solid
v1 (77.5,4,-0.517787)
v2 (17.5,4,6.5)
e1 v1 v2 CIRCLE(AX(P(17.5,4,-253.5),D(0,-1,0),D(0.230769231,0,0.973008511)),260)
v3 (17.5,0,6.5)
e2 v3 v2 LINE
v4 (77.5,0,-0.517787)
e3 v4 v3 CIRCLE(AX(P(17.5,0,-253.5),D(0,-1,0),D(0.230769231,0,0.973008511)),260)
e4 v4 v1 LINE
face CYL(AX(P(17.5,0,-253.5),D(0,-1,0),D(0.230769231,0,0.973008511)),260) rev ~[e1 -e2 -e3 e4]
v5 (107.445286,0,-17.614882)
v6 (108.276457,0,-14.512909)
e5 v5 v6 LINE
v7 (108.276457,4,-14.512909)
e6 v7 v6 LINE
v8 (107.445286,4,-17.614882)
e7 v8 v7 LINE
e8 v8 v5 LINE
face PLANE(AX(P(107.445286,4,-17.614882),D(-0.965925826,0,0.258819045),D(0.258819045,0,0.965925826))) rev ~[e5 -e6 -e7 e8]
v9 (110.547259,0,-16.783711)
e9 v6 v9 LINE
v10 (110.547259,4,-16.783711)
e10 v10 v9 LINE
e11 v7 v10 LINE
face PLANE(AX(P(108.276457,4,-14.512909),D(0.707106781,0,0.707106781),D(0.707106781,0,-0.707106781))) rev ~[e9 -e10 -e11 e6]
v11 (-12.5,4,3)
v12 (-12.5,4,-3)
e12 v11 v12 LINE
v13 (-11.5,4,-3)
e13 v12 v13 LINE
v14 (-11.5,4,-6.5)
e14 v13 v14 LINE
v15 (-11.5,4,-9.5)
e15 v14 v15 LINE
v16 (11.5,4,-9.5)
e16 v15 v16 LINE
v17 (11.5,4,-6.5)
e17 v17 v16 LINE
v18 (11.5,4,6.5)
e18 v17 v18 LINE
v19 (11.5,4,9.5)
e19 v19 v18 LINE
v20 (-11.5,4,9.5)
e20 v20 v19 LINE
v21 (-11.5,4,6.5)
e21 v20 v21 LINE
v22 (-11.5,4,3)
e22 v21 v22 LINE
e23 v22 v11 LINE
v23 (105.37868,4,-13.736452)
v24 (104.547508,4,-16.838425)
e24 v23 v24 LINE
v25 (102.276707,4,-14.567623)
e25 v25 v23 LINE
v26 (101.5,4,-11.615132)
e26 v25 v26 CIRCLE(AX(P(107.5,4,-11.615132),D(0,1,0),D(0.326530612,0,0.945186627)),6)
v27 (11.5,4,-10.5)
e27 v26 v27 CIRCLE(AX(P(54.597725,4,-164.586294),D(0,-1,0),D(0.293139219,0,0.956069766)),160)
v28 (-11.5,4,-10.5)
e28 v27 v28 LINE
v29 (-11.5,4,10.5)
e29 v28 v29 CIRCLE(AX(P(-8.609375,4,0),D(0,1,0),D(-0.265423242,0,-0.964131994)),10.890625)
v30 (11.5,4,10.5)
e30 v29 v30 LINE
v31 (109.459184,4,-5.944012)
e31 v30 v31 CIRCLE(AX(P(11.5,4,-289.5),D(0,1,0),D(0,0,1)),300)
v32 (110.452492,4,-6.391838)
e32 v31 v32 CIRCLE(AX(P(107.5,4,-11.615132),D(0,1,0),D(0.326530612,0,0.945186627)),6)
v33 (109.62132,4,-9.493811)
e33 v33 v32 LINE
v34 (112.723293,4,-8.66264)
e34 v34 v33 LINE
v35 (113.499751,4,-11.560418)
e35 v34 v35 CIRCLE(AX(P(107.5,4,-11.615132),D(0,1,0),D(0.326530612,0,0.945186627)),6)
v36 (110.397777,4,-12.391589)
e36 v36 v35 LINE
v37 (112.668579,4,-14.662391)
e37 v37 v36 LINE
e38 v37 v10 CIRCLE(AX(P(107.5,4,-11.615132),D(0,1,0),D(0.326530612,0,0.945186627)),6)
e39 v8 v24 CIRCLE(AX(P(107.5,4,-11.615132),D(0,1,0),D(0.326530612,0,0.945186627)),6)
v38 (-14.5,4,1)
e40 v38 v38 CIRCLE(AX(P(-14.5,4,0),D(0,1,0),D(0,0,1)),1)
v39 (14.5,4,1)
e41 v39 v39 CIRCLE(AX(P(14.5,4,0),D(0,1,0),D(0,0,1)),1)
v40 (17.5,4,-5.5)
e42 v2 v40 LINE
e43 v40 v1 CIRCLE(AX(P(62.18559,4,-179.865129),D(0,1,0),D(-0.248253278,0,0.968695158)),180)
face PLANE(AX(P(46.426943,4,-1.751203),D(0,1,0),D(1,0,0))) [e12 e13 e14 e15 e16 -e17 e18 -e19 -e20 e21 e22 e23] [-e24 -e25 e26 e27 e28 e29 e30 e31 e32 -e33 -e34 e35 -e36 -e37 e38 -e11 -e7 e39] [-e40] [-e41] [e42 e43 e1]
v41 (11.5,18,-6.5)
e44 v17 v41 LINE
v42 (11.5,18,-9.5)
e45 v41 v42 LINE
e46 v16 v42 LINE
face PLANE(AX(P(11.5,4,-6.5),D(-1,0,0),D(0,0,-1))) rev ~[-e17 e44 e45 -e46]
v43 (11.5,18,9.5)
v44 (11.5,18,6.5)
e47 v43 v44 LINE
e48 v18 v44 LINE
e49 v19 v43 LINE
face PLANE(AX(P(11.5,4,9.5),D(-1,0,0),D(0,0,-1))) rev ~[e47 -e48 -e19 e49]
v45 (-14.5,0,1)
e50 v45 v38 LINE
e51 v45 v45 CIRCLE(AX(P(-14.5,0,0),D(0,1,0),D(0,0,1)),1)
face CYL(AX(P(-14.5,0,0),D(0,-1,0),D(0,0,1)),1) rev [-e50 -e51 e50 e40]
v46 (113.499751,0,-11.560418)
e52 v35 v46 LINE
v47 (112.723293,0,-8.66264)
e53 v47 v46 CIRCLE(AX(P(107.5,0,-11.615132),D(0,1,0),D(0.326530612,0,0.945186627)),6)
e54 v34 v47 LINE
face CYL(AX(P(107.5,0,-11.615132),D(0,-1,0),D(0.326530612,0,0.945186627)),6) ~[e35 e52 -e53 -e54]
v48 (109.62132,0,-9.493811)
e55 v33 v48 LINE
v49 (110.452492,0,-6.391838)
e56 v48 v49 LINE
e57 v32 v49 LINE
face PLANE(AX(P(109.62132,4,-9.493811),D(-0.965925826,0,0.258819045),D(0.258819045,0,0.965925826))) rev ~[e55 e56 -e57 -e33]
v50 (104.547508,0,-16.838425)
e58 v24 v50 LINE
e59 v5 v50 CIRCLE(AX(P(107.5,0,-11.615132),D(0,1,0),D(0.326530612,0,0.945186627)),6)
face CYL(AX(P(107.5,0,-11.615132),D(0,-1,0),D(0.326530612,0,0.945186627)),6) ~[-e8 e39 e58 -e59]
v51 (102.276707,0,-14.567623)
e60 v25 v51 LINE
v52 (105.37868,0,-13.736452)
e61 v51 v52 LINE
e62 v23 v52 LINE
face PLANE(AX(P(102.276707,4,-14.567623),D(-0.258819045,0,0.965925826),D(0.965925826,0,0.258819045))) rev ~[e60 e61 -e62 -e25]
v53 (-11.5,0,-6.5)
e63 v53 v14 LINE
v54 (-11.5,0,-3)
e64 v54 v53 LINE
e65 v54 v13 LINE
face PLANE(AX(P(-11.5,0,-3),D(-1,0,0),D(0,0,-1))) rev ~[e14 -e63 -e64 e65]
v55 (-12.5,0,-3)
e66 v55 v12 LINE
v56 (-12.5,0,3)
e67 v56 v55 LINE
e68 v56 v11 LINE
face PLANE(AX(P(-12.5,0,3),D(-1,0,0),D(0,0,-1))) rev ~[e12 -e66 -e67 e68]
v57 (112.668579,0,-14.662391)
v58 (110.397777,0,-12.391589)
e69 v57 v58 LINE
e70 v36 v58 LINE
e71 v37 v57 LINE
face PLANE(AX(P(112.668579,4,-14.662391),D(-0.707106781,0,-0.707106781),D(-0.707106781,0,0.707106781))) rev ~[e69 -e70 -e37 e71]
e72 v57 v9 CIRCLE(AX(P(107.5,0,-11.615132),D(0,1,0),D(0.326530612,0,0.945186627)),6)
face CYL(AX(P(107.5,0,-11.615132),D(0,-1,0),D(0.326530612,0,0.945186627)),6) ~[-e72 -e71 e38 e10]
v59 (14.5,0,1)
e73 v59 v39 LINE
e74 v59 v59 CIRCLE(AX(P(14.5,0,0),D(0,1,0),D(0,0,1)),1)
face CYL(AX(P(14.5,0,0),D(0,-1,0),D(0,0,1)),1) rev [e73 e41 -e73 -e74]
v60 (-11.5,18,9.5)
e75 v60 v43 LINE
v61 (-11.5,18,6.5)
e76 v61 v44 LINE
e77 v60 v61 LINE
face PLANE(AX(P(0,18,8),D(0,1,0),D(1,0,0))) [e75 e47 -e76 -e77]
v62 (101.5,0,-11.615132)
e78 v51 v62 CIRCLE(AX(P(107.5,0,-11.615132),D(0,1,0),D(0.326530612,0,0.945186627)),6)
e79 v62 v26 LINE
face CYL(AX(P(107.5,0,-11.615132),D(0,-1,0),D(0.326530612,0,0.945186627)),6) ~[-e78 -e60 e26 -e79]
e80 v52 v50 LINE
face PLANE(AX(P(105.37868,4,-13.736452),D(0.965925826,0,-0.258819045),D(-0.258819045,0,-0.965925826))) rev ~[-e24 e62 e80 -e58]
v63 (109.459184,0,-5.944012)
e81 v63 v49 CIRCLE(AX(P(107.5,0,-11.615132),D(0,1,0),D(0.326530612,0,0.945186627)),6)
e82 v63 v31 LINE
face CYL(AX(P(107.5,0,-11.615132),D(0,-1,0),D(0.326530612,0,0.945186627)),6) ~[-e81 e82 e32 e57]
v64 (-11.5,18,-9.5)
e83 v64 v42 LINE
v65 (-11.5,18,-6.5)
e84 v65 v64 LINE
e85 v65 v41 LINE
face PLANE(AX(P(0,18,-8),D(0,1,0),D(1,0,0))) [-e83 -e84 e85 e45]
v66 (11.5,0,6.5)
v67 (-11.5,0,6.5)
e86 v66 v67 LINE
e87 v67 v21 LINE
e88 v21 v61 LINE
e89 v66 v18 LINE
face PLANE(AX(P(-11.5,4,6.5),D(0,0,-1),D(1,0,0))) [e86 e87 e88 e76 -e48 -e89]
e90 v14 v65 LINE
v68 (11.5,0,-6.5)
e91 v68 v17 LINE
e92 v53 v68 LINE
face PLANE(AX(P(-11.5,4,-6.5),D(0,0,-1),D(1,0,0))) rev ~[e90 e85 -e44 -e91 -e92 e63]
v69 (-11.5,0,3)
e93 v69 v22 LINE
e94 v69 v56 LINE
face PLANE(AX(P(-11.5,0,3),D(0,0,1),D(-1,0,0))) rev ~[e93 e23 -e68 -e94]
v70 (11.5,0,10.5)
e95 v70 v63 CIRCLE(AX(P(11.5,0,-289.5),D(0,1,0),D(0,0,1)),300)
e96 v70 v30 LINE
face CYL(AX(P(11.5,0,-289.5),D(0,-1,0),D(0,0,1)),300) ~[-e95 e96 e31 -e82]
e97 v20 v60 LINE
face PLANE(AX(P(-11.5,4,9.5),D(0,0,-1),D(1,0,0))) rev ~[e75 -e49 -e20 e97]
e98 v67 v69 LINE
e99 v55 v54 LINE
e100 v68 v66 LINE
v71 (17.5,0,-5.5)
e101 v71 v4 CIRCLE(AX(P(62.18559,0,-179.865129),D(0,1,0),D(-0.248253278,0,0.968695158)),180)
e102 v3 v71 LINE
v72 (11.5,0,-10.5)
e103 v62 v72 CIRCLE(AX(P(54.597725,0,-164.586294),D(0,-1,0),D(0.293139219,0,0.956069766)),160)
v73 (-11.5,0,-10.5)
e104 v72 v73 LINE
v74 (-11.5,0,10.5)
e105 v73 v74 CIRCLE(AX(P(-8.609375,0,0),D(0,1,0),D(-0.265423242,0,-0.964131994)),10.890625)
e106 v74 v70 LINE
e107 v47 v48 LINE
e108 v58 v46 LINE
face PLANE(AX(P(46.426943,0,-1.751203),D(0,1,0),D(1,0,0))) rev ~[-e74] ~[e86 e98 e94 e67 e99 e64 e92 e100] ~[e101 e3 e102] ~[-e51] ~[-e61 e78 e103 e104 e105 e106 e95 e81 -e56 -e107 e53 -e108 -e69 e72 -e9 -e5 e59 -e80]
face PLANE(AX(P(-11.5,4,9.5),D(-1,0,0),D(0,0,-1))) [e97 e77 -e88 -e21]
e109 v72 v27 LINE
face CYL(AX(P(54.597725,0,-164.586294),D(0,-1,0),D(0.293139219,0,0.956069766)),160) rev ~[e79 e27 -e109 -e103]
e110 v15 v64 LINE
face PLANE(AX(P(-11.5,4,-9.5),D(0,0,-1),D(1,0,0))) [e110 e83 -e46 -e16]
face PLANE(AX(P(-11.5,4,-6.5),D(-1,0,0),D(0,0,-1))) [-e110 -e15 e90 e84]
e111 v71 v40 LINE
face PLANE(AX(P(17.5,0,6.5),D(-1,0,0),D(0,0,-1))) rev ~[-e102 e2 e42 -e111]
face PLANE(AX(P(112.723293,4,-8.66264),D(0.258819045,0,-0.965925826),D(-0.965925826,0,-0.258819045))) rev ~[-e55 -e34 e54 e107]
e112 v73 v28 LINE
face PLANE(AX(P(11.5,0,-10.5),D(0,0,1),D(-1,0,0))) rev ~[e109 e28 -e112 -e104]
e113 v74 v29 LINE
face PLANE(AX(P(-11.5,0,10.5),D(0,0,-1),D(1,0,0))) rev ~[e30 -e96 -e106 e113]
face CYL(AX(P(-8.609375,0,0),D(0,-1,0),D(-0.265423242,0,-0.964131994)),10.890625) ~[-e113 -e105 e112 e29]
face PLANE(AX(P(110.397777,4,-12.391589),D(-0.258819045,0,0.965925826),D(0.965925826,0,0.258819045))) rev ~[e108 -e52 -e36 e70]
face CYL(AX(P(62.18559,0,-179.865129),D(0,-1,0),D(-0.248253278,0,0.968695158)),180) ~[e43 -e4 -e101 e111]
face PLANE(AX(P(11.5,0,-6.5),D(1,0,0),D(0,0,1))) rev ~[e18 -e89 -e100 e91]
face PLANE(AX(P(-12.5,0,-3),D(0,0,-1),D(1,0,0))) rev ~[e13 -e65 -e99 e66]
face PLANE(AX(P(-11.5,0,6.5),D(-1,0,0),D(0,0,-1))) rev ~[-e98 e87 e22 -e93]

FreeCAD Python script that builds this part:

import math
import FreeCAD as App
import Part
import Sketcher

V = App.Vector
Q = App.Units.Quantity

doc = App.newDocument("Part")
params = doc.addObject("Spreadsheet::Sheet", "Params")
for row, (alias, value) in enumerate([
    ("sketch1_diameter", "2 mm"),
    ("sketch1_radius", "300 mm"),
    ("sketch1_radius2", "6 mm"),
    ("sketch1_radius3", "160 mm"),
    ("sketch1_radius4", "260 mm"),
    ("pad1_length", "4 mm"),
    ("sketch2_width", "23 mm"),
    ("sketch2_height", "3 mm"),
    ("pad2_length", "14 mm"),
    ("sketch3_radius", "6 mm"),
], start=1):
    params.set(f"A{row}", alias)
    params.set(f"B{row}", "=" + value)
    params.setAlias(f"B{row}", alias)

body = doc.addObject("PartDesign::Body", "Body")

# Sketch on XZ plane
sketch1 = body.newObject("Sketcher::SketchObject", "Sketch")
sketch1.AttachmentSupport = (doc.getObject("XZ_Plane"), [""])
sketch1.MapMode = "FlatFace"
sketch1.addGeometry([
    Part.ArcOfCircle(Part.Circle(V(-8.6, 0, 0), V(0, 0, 1), 10.9), math.radians(105), math.radians(255)),  # 0
    Part.LineSegment(V(-11.5, 10.5, 0), V(11.5, 10.5, 0)),  # 1
    Part.ArcOfCircle(Part.Circle(V(11.5, -289.5, 0), V(0, 0, 1), 300), math.radians(70.94), math.radians(90)),  # 2
    Part.ArcOfCircle(Part.Circle(V(107.5, -11.6, 0), V(0, 0, 1), 6), math.radians(180), math.radians(431)),  # 3
    Part.ArcOfCircle(Part.Circle(V(54.6, -164.6, 0), V(0, 0, 1), 160), math.radians(73), math.radians(106)),  # 4
    Part.LineSegment(V(11.5, -10.5, 0), V(-11.5, -10.5, 0)),  # 5
    Part.ArcOfCircle(Part.Circle(V(17.5, -253.5, 0), V(0, 0, 1), 260), math.radians(76.66), math.radians(90)),  # 6
    Part.LineSegment(V(17.5, 6.5, 0), V(17.5, -5.5, 0)),  # 7
    Part.ArcOfCircle(Part.Circle(V(62.2, -179.9, 0), V(0, 0, 1), 180), math.radians(85.12), math.radians(104.37)),  # 8
    Part.Circle(V(-14.5, 0, 0), V(0, 0, 1), 1),  # 9
    Part.LineSegment(V(11.5, -6.5, 0), V(11.5, 6.5, 0)),  # 10
    Part.LineSegment(V(11.5, 6.5, 0), V(-11.5, 6.5, 0)),  # 11
    Part.LineSegment(V(-11.5, 6.5, 0), V(-11.5, 3, 0)),  # 12
    Part.LineSegment(V(-11.5, 3, 0), V(-12.5, 3, 0)),  # 13
    Part.LineSegment(V(-12.5, 3, 0), V(-12.5, -3, 0)),  # 14
    Part.LineSegment(V(-12.5, -3, 0), V(-11.5, -3, 0)),  # 15
    Part.LineSegment(V(-11.5, -3, 0), V(-11.5, -6.5, 0)),  # 16
    Part.LineSegment(V(-11.5, -6.5, 0), V(11.5, -6.5, 0)),  # 17
    Part.Circle(V(14.5, 0, 0), V(0, 0, 1), 1),  # 18
], False)
sketch1.addConstraint([
    Sketcher.Constraint("Coincident", 0, 1, 1, 1),
    Sketcher.Constraint("Tangent", 1, 2, 2, 2),
    Sketcher.Constraint("Tangent", 2, 1, 3, 2),
    Sketcher.Constraint("Coincident", 3, 1, 4, 1),
    Sketcher.Constraint("Coincident", 4, 2, 5, 1),
    Sketcher.Constraint("Coincident", 5, 2, 0, 2),
    Sketcher.Constraint("Coincident", 6, 2, 7, 1),
    Sketcher.Constraint("Coincident", 7, 2, 8, 2),
    Sketcher.Constraint("Coincident", 8, 1, 6, 1),
    Sketcher.Constraint("Coincident", 10, 2, 11, 1),
    Sketcher.Constraint("Coincident", 11, 2, 12, 1),
    Sketcher.Constraint("Coincident", 12, 2, 13, 1),
    Sketcher.Constraint("Coincident", 13, 2, 14, 1),
    Sketcher.Constraint("Coincident", 14, 2, 15, 1),
    Sketcher.Constraint("Coincident", 15, 2, 16, 1),
    Sketcher.Constraint("Coincident", 16, 2, 17, 1),
    Sketcher.Constraint("Coincident", 17, 2, 10, 1),
    Sketcher.Constraint("Horizontal", 1),
    Sketcher.Constraint("Horizontal", 5),
    Sketcher.Constraint("Vertical", 7),
    Sketcher.Constraint("Vertical", 10),
    Sketcher.Constraint("Horizontal", 11),
    Sketcher.Constraint("Vertical", 12),
    Sketcher.Constraint("Horizontal", 13),
    Sketcher.Constraint("Vertical", 14),
    Sketcher.Constraint("Horizontal", 15),
    Sketcher.Constraint("Vertical", 16),
    Sketcher.Constraint("Horizontal", 17),
    Sketcher.Constraint("Equal", 9, 18),
    Sketcher.Constraint("Symmetric", 9, 3, 18, 3, -1, 1),
    Sketcher.Constraint("Symmetric", 0, 1, 4, 2, -1, 1),
    Sketcher.Constraint("Symmetric", 10, 2, 16, 2, -1, 1),
    Sketcher.Constraint("Symmetric", 12, 2, 15, 2, -1),
    Sketcher.Constraint("PointOnObject", 0, 3, -1),
    Sketcher.Constraint("PointOnObject", 9, 3, -1),
    Sketcher.Constraint("Horizontal", 6, 2, 10, 2),
    Sketcher.Constraint("Vertical", 1, 2, 4, 2),
    Sketcher.Constraint("Vertical", 4, 2, 10, 2),
    Sketcher.Constraint("Diameter", 9, Q("2 mm")),
    Sketcher.Constraint("Radius", 2, Q("300 mm")),
    Sketcher.Constraint("Radius", 3, Q("6 mm")),
    Sketcher.Constraint("Radius", 4, Q("160 mm")),
    Sketcher.Constraint("Radius", 6, Q("260 mm")),
    Sketcher.Constraint("Radius", 8, Q("180 mm")),
    Sketcher.Constraint("DistanceX", 1, 1, 1, 2, Q("23 mm")),
    Sketcher.Constraint("DistanceX", 13, 2, 13, 1, Q("1 mm")),
    Sketcher.Constraint("DistanceY", 7, 2, 7, 1, Q("12 mm")),
    Sketcher.Constraint("DistanceY", 10, 1, 10, 2, Q("13 mm")),
    Sketcher.Constraint("DistanceY", 14, 2, 14, 1, Q("6 mm")),
    Sketcher.Constraint("DistanceX", 2, 3, 3, 3, Q("96 mm")),
    Sketcher.Constraint("DistanceX", 2, 3, 6, 3, Q("6 mm")),
    Sketcher.Constraint("DistanceY", 2, 3, 6, 3, Q("36 mm")),
    Sketcher.Constraint("DistanceX", 9, 3, 3, 3, Q("122 mm")),
    Sketcher.Constraint("DistanceX", 18, 3, 6, 2, Q("3 mm")),
    Sketcher.Constraint("DistanceX", 8, 1, 3, 1, Q("24 mm")),
    Sketcher.Constraint("Radius", 0, Q("10.890625 mm")),
    Sketcher.Constraint("DistanceX", 0, 3, 4, 3, Q("63.2071 mm")),
])
sketch1.setExpression("Constraints[38]", "Params.sketch1_diameter")
sketch1.setExpression("Constraints[39]", "Params.sketch1_radius")
sketch1.setExpression("Constraints[40]", "Params.sketch1_radius2")
sketch1.setExpression("Constraints[41]", "Params.sketch1_radius3")
sketch1.setExpression("Constraints[42]", "Params.sketch1_radius4")
pad1 = body.newObject("PartDesign::Pad", "Pad")
pad1.Profile = sketch1
pad1.setExpression("Length", "Params.pad1_length")
pad1.Reversed = True

# Sketch on XZ plane
sketch2 = body.newObject("Sketcher::SketchObject", "Sketch001")
sketch2.AttachmentSupport = (doc.getObject("XZ_Plane"), [""])
sketch2.MapMode = "FlatFace"
sketch2.AttachmentOffset = App.Placement(V(0, 0, -4), App.Rotation())
sketch2.addGeometry([
    Part.LineSegment(V(-11.5, 6.5, 0), V(-11.5, 9.5, 0)),  # 0
    Part.LineSegment(V(-11.5, 9.5, 0), V(11.5, 9.5, 0)),  # 1
    Part.LineSegment(V(11.5, 9.5, 0), V(11.5, 6.5, 0)),  # 2
    Part.LineSegment(V(11.5, 6.5, 0), V(-11.5, 6.5, 0)),  # 3
    Part.LineSegment(V(-11.5, -9.5, 0), V(-11.5, -6.5, 0)),  # 4
    Part.LineSegment(V(-11.5, -6.5, 0), V(11.5, -6.5, 0)),  # 5
    Part.LineSegment(V(11.5, -6.5, 0), V(11.5, -9.5, 0)),  # 6
    Part.LineSegment(V(11.5, -9.5, 0), V(-11.5, -9.5, 0)),  # 7
], False)
sketch2.addConstraint([
    Sketcher.Constraint("Coincident", 0, 2, 1, 1),
    Sketcher.Constraint("Coincident", 1, 2, 2, 1),
    Sketcher.Constraint("Coincident", 2, 2, 3, 1),
    Sketcher.Constraint("Coincident", 3, 2, 0, 1),
    Sketcher.Constraint("Coincident", 4, 2, 5, 1),
    Sketcher.Constraint("Coincident", 5, 2, 6, 1),
    Sketcher.Constraint("Coincident", 6, 2, 7, 1),
    Sketcher.Constraint("Coincident", 7, 2, 4, 1),
    Sketcher.Constraint("Vertical", 0),
    Sketcher.Constraint("Horizontal", 1),
    Sketcher.Constraint("Vertical", 2),
    Sketcher.Constraint("Horizontal", 3),
    Sketcher.Constraint("Vertical", 4),
    Sketcher.Constraint("Horizontal", 5),
    Sketcher.Constraint("Vertical", 6),
    Sketcher.Constraint("Horizontal", 7),
    Sketcher.Constraint("Symmetric", 2, 2, 4, 2, -1, 1),
    Sketcher.Constraint("Symmetric", 0, 2, 6, 2, -1, 1),
    Sketcher.Constraint("Vertical", 3, 2, 4, 2),
    Sketcher.Constraint("DistanceX", 1, 1, 1, 2, Q("23 mm")),
    Sketcher.Constraint("DistanceY", 0, 1, 0, 2, Q("3 mm")),
    Sketcher.Constraint("DistanceY", 4, 2, 3, 2, Q("13 mm")),
])
sketch2.setExpression("Constraints[19]", "Params.sketch2_width")
sketch2.setExpression("Constraints[20]", "Params.sketch2_height")
pad2 = body.newObject("PartDesign::Pad", "Pad001")
pad2.Profile = sketch2
pad2.setExpression("Length", "Params.pad2_length")
pad2.Reversed = True

# Sketch on XZ plane
sketch3 = body.newObject("Sketcher::SketchObject", "Sketch002")
sketch3.AttachmentSupport = (doc.getObject("XZ_Plane"), [""])
sketch3.MapMode = "FlatFace"
sketch3.AttachmentOffset = App.Placement(V(0, 0, -4), App.Rotation())
sketch3.addGeometry([
    Part.LineSegment(V(102.3, -14.6, 0), V(105.4, -13.7, 0)),  # 0
    Part.LineSegment(V(105.4, -13.7, 0), V(104.5, -16.8, 0)),  # 1
    Part.ArcOfCircle(Part.Circle(V(107.5, -11.6, 0), V(0, 0, 1), 6), math.radians(-151), math.radians(-119)),  # 2
    Part.ArcOfCircle(Part.Circle(V(107.5, -11.6, 0), V(0, 0, 1), 6), math.radians(-91), math.radians(-59)),  # 3
    Part.LineSegment(V(107.4, -17.6, 0), V(108.3, -14.5, 0)),  # 4
    Part.LineSegment(V(108.3, -14.5, 0), V(110.5, -16.8, 0)),  # 5
    Part.ArcOfCircle(Part.Circle(V(107.5, -11.6, 0), V(0, 0, 1), 6), math.radians(-31), math.radians(1)),  # 6
    Part.LineSegment(V(112.7, -14.7, 0), V(110.4, -12.4, 0)),  # 7
    Part.LineSegment(V(110.4, -12.4, 0), V(113.5, -11.6, 0)),  # 8
    Part.ArcOfCircle(Part.Circle(V(107.5, -11.6, 0), V(0, 0, 1), 6), math.radians(29), math.radians(61)),  # 9
    Part.LineSegment(V(112.7, -8.7, 0), V(109.6, -9.5, 0)),  # 10
    Part.LineSegment(V(109.6, -9.5, 0), V(110.5, -6.4, 0)),  # 11
], False)
sketch3.addConstraint([
    Sketcher.Constraint("Coincident", 0, 2, 1, 1),
    Sketcher.Constraint("Coincident", 1, 2, 2, 2),
    Sketcher.Constraint("Coincident", 2, 1, 0, 1),
    Sketcher.Constraint("Coincident", 3, 1, 4, 1),
    Sketcher.Constraint("Coincident", 4, 2, 5, 1),
    Sketcher.Constraint("Coincident", 5, 2, 3, 2),
    Sketcher.Constraint("Coincident", 6, 1, 7, 1),
    Sketcher.Constraint("Coincident", 7, 2, 8, 1),
    Sketcher.Constraint("Coincident", 8, 2, 6, 2),
    Sketcher.Constraint("Coincident", 9, 1, 10, 1),
    Sketcher.Constraint("Coincident", 10, 2, 11, 1),
    Sketcher.Constraint("Coincident", 11, 2, 9, 2),
    Sketcher.Constraint("Coincident", 3, 3, 2, 3),
    Sketcher.Constraint("Coincident", 6, 3, 2, 3),
    Sketcher.Constraint("Coincident", 9, 3, 2, 3),
    Sketcher.Constraint("Equal", 2, 3),
    Sketcher.Constraint("Equal", 3, 6),
    Sketcher.Constraint("Equal", 6, 9),
    Sketcher.Constraint("Parallel", 1, 4),
    Sketcher.Constraint("Parallel", 5, 7),
    Sketcher.Constraint("Parallel", 0, 8),
    Sketcher.Constraint("Parallel", 8, 10),
    Sketcher.Constraint("Parallel", 4, 11),
    Sketcher.Constraint("Equal", 0, 1),
    Sketcher.Constraint("Equal", 1, 4),
    Sketcher.Constraint("Equal", 4, 5),
    Sketcher.Constraint("Equal", 5, 7),
    Sketcher.Constraint("Equal", 7, 8),
    Sketcher.Constraint("Equal", 8, 10),
    Sketcher.Constraint("Equal", 10, 11),
    Sketcher.Constraint("Radius", 2, Q("6 mm")),
    Sketcher.Constraint("Angle", 0, Q("15 deg")),
    Sketcher.Constraint("Angle", 1, Q("-105 deg")),
    Sketcher.Constraint("Angle", 5, Q("-45 deg")),
    Sketcher.Constraint("DistanceX", -1, 1, 2, 3, Q("107.5 mm")),
    Sketcher.Constraint("Distance", 0, Q("3.211399 mm")),
    Sketcher.Constraint("DistanceY", 2, 3, -1, 1, Q("11.615132 mm")),
])
sketch3.setExpression("Constraints[30]", "Params.sketch3_radius")
pocket1 = body.newObject("PartDesign::Pocket", "Pocket")
pocket1.Profile = sketch3
pocket1.Type = "ThroughAll"
pocket1.Reversed = True

doc.recompute()
